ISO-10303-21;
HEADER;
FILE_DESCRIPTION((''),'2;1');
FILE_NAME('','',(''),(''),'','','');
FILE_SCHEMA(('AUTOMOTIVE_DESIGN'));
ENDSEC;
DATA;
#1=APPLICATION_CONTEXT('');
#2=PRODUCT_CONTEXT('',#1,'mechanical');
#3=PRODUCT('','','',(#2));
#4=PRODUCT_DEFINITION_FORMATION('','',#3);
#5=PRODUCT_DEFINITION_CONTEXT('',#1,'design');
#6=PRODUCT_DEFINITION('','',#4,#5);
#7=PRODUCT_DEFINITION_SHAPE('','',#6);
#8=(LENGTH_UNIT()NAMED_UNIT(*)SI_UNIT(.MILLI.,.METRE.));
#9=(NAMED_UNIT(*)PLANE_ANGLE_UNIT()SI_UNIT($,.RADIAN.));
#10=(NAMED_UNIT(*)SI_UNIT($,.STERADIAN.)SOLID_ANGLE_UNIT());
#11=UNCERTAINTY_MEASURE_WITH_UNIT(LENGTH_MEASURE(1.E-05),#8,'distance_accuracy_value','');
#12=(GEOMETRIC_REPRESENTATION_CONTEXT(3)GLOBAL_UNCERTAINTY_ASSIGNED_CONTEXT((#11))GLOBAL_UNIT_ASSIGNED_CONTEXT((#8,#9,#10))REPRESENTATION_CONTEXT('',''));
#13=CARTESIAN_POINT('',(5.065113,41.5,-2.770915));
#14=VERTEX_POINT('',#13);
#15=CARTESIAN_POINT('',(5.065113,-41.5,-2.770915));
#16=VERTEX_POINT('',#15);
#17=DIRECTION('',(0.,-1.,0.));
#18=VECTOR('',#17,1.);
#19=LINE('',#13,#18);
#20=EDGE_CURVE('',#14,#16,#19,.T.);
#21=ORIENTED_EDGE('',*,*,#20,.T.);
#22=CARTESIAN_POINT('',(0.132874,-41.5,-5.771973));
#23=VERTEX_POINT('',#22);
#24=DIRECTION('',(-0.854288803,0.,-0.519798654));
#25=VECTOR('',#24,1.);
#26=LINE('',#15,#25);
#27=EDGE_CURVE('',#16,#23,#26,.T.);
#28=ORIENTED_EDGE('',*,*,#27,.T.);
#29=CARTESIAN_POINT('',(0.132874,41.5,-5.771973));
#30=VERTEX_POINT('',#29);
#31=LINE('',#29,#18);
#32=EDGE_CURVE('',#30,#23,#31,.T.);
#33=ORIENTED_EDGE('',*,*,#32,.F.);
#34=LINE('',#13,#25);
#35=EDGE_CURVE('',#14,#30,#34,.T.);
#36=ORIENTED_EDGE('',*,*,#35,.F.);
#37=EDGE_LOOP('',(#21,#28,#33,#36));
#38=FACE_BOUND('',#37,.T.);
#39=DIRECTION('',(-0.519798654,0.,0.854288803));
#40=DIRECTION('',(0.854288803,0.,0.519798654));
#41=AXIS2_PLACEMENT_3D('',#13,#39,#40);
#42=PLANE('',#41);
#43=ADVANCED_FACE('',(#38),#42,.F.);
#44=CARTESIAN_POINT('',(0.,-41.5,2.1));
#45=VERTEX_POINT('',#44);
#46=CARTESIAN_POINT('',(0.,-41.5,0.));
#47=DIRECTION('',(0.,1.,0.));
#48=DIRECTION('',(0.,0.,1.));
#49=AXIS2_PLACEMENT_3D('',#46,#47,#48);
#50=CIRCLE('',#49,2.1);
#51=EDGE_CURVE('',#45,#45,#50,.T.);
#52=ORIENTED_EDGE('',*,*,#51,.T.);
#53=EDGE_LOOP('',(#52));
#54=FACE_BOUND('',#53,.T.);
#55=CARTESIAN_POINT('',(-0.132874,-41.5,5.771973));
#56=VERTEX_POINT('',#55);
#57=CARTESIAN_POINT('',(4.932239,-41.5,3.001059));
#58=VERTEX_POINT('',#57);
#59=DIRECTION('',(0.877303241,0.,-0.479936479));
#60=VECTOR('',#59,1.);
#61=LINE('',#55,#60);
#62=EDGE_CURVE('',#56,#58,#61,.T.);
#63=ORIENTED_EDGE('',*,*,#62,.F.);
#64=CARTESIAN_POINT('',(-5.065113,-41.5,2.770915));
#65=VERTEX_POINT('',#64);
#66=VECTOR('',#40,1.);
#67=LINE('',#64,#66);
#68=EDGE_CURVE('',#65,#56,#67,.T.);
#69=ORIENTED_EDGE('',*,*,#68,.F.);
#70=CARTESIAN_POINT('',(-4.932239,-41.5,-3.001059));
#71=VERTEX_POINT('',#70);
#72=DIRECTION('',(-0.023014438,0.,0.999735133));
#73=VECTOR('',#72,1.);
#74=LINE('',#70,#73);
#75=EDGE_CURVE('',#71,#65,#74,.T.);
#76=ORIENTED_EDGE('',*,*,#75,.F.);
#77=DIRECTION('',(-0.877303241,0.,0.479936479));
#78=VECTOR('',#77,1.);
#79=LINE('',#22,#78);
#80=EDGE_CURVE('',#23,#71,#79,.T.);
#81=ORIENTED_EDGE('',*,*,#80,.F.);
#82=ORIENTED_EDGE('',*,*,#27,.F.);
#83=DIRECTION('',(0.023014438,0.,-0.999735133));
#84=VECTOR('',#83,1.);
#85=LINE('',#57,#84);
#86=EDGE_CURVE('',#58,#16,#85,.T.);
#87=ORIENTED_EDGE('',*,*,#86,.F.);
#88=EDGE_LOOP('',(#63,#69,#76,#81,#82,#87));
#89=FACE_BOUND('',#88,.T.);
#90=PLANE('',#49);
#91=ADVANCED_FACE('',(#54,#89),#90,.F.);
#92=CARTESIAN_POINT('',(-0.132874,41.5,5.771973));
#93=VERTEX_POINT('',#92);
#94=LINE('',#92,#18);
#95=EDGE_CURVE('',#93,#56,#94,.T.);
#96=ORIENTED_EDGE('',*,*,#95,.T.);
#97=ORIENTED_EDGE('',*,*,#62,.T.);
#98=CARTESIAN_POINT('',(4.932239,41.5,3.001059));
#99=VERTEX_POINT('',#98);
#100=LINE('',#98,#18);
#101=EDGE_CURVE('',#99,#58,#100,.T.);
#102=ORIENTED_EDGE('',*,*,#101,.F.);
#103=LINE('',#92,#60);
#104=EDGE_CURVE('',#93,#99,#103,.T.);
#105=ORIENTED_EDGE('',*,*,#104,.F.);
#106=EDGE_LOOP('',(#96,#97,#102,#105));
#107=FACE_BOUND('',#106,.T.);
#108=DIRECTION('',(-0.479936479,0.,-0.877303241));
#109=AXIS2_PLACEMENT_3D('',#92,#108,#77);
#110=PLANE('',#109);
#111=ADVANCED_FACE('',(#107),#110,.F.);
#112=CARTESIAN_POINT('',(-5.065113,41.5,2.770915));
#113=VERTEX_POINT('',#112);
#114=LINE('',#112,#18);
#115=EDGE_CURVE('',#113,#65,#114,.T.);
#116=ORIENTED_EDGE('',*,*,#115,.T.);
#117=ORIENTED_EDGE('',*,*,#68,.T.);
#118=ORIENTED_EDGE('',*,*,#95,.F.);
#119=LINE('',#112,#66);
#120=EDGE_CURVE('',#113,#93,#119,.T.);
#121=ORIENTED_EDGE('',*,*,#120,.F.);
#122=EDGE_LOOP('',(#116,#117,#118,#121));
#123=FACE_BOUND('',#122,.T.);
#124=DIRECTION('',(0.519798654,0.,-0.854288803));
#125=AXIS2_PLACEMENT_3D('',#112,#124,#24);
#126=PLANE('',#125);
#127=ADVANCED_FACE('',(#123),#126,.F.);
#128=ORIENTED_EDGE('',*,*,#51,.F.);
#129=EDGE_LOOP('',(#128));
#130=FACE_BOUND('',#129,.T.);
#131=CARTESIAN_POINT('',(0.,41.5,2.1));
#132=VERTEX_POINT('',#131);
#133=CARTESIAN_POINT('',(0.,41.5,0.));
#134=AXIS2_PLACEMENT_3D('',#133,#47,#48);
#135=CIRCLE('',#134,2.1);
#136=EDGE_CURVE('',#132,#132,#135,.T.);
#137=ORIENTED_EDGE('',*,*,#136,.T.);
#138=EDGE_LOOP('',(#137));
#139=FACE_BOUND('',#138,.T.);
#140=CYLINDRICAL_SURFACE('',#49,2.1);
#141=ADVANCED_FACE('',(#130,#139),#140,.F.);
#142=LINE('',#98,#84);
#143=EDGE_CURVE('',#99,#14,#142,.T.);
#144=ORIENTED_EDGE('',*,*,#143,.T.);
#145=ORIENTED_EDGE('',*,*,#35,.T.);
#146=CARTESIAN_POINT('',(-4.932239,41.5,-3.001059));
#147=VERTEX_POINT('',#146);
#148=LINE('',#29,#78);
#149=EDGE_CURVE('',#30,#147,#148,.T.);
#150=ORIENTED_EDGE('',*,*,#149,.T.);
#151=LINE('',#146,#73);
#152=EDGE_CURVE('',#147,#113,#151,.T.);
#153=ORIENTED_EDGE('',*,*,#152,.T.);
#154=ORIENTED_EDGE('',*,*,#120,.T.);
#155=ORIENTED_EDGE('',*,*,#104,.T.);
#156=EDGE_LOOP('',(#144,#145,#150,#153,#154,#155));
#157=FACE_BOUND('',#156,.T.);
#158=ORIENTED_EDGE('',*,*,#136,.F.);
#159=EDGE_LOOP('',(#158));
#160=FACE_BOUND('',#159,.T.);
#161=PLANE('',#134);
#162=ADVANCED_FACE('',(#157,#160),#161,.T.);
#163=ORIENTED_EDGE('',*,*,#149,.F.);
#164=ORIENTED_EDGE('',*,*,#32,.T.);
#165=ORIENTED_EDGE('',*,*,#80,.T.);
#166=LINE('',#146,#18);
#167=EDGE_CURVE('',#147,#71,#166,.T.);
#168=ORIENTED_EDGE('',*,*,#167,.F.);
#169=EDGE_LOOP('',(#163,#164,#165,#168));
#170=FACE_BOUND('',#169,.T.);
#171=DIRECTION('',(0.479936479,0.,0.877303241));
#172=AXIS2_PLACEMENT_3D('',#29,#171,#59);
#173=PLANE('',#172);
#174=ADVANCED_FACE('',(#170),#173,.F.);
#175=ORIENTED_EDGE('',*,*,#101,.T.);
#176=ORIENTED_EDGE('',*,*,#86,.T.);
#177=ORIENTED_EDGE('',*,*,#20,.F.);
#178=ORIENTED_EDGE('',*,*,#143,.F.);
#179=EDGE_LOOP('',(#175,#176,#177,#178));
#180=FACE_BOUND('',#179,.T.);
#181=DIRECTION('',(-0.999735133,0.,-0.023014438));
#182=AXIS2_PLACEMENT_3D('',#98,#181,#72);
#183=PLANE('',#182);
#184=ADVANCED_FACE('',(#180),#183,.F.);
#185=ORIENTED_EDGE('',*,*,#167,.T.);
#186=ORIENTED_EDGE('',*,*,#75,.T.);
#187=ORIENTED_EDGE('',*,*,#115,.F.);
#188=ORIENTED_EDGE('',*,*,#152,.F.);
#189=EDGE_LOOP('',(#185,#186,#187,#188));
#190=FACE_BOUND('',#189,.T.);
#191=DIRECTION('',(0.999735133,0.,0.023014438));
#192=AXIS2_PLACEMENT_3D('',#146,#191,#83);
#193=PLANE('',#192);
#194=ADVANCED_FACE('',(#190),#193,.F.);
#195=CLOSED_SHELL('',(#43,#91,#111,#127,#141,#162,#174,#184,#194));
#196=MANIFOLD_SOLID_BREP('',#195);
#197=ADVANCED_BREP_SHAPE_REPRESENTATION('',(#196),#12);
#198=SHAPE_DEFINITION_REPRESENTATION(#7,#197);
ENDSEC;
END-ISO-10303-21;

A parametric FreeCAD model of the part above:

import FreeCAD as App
import Part
import Sketcher
Q = App.Units.Quantity


def add_polygon(sketch, points):
    """Adds a closed chain of lines whose ends are joined by coincident constraints."""
    first, n = sketch.GeometryCount, len(points)
    for a, b in zip(points, points[1:] + points[:1]):
        sketch.addGeometry(Part.LineSegment(App.Vector(*a, 0), App.Vector(*b, 0)), False)
    for i in range(n):
        sketch.addConstraint(Sketcher.Constraint("Coincident", first + i, 2, first + (i + 1) % n, 1))

doc = App.newDocument("Part")
body = doc.addObject("PartDesign::Body", "Body")

# Sketch on XZ plane
sketch1 = body.newObject("Sketcher::SketchObject", "Sketch")
sketch1.AttachmentSupport = (doc.getObject("XZ_Plane"), [""])
sketch1.MapMode = "FlatFace"
add_polygon(sketch1, [(5, -3), (0, -6), (-5, -3), (-5, 3), (0, 6), (5, 3)])  # lines 0-5
sketch1.addConstraint([
    Sketcher.Constraint("Symmetric", 0, 2, 3, 2, -1, 1),
    Sketcher.Constraint("Symmetric", 1, 2, 4, 2, -1, 1),
    Sketcher.Constraint("Symmetric", 2, 2, 5, 2, -1, 1),
    Sketcher.Constraint("Equal", 0, 1),
    Sketcher.Constraint("Equal", 1, 2),
    Sketcher.Constraint("DistanceX", 1, 2, -1, 1, Q("4.932239 mm")),
    Sketcher.Constraint("DistanceY", 1, 2, -1, 1, Q("3.001059 mm")),
    Sketcher.Constraint("DistanceY", 0, 2, 2, 2, Q("8.542888 mm")),
    Sketcher.Constraint("DistanceX", 2, 2, 3, 2, Q("4.932239 mm")),
])
pad1 = body.newObject("PartDesign::Pad", "Pad")
pad1.Profile = sketch1
pad1.Length = 83
pad1.Midplane = True

# Sketch on XZ plane
sketch2 = body.newObject("Sketcher::SketchObject", "Sketch001")
sketch2.AttachmentSupport = (doc.getObject("XZ_Plane"), [""])
sketch2.MapMode = "FlatFace"
sketch2.AttachmentOffset = App.Placement(App.Vector(0, 0, -41.5), App.Rotation())
sketch2.addGeometry(Part.Circle(App.Vector(0, 0, 0), App.Vector(0, 0, 1), 2.1), False)
sketch2.addConstraint([
    Sketcher.Constraint("Coincident", 0, 3, -1, 1),
    Sketcher.Constraint("Diameter", 0, Q("4.2 mm")),
])
pocket1 = body.newObject("PartDesign::Pocket", "Pocket")
pocket1.Profile = sketch2
pocket1.Type = "ThroughAll"
pocket1.Reversed = True

doc.recompute()
